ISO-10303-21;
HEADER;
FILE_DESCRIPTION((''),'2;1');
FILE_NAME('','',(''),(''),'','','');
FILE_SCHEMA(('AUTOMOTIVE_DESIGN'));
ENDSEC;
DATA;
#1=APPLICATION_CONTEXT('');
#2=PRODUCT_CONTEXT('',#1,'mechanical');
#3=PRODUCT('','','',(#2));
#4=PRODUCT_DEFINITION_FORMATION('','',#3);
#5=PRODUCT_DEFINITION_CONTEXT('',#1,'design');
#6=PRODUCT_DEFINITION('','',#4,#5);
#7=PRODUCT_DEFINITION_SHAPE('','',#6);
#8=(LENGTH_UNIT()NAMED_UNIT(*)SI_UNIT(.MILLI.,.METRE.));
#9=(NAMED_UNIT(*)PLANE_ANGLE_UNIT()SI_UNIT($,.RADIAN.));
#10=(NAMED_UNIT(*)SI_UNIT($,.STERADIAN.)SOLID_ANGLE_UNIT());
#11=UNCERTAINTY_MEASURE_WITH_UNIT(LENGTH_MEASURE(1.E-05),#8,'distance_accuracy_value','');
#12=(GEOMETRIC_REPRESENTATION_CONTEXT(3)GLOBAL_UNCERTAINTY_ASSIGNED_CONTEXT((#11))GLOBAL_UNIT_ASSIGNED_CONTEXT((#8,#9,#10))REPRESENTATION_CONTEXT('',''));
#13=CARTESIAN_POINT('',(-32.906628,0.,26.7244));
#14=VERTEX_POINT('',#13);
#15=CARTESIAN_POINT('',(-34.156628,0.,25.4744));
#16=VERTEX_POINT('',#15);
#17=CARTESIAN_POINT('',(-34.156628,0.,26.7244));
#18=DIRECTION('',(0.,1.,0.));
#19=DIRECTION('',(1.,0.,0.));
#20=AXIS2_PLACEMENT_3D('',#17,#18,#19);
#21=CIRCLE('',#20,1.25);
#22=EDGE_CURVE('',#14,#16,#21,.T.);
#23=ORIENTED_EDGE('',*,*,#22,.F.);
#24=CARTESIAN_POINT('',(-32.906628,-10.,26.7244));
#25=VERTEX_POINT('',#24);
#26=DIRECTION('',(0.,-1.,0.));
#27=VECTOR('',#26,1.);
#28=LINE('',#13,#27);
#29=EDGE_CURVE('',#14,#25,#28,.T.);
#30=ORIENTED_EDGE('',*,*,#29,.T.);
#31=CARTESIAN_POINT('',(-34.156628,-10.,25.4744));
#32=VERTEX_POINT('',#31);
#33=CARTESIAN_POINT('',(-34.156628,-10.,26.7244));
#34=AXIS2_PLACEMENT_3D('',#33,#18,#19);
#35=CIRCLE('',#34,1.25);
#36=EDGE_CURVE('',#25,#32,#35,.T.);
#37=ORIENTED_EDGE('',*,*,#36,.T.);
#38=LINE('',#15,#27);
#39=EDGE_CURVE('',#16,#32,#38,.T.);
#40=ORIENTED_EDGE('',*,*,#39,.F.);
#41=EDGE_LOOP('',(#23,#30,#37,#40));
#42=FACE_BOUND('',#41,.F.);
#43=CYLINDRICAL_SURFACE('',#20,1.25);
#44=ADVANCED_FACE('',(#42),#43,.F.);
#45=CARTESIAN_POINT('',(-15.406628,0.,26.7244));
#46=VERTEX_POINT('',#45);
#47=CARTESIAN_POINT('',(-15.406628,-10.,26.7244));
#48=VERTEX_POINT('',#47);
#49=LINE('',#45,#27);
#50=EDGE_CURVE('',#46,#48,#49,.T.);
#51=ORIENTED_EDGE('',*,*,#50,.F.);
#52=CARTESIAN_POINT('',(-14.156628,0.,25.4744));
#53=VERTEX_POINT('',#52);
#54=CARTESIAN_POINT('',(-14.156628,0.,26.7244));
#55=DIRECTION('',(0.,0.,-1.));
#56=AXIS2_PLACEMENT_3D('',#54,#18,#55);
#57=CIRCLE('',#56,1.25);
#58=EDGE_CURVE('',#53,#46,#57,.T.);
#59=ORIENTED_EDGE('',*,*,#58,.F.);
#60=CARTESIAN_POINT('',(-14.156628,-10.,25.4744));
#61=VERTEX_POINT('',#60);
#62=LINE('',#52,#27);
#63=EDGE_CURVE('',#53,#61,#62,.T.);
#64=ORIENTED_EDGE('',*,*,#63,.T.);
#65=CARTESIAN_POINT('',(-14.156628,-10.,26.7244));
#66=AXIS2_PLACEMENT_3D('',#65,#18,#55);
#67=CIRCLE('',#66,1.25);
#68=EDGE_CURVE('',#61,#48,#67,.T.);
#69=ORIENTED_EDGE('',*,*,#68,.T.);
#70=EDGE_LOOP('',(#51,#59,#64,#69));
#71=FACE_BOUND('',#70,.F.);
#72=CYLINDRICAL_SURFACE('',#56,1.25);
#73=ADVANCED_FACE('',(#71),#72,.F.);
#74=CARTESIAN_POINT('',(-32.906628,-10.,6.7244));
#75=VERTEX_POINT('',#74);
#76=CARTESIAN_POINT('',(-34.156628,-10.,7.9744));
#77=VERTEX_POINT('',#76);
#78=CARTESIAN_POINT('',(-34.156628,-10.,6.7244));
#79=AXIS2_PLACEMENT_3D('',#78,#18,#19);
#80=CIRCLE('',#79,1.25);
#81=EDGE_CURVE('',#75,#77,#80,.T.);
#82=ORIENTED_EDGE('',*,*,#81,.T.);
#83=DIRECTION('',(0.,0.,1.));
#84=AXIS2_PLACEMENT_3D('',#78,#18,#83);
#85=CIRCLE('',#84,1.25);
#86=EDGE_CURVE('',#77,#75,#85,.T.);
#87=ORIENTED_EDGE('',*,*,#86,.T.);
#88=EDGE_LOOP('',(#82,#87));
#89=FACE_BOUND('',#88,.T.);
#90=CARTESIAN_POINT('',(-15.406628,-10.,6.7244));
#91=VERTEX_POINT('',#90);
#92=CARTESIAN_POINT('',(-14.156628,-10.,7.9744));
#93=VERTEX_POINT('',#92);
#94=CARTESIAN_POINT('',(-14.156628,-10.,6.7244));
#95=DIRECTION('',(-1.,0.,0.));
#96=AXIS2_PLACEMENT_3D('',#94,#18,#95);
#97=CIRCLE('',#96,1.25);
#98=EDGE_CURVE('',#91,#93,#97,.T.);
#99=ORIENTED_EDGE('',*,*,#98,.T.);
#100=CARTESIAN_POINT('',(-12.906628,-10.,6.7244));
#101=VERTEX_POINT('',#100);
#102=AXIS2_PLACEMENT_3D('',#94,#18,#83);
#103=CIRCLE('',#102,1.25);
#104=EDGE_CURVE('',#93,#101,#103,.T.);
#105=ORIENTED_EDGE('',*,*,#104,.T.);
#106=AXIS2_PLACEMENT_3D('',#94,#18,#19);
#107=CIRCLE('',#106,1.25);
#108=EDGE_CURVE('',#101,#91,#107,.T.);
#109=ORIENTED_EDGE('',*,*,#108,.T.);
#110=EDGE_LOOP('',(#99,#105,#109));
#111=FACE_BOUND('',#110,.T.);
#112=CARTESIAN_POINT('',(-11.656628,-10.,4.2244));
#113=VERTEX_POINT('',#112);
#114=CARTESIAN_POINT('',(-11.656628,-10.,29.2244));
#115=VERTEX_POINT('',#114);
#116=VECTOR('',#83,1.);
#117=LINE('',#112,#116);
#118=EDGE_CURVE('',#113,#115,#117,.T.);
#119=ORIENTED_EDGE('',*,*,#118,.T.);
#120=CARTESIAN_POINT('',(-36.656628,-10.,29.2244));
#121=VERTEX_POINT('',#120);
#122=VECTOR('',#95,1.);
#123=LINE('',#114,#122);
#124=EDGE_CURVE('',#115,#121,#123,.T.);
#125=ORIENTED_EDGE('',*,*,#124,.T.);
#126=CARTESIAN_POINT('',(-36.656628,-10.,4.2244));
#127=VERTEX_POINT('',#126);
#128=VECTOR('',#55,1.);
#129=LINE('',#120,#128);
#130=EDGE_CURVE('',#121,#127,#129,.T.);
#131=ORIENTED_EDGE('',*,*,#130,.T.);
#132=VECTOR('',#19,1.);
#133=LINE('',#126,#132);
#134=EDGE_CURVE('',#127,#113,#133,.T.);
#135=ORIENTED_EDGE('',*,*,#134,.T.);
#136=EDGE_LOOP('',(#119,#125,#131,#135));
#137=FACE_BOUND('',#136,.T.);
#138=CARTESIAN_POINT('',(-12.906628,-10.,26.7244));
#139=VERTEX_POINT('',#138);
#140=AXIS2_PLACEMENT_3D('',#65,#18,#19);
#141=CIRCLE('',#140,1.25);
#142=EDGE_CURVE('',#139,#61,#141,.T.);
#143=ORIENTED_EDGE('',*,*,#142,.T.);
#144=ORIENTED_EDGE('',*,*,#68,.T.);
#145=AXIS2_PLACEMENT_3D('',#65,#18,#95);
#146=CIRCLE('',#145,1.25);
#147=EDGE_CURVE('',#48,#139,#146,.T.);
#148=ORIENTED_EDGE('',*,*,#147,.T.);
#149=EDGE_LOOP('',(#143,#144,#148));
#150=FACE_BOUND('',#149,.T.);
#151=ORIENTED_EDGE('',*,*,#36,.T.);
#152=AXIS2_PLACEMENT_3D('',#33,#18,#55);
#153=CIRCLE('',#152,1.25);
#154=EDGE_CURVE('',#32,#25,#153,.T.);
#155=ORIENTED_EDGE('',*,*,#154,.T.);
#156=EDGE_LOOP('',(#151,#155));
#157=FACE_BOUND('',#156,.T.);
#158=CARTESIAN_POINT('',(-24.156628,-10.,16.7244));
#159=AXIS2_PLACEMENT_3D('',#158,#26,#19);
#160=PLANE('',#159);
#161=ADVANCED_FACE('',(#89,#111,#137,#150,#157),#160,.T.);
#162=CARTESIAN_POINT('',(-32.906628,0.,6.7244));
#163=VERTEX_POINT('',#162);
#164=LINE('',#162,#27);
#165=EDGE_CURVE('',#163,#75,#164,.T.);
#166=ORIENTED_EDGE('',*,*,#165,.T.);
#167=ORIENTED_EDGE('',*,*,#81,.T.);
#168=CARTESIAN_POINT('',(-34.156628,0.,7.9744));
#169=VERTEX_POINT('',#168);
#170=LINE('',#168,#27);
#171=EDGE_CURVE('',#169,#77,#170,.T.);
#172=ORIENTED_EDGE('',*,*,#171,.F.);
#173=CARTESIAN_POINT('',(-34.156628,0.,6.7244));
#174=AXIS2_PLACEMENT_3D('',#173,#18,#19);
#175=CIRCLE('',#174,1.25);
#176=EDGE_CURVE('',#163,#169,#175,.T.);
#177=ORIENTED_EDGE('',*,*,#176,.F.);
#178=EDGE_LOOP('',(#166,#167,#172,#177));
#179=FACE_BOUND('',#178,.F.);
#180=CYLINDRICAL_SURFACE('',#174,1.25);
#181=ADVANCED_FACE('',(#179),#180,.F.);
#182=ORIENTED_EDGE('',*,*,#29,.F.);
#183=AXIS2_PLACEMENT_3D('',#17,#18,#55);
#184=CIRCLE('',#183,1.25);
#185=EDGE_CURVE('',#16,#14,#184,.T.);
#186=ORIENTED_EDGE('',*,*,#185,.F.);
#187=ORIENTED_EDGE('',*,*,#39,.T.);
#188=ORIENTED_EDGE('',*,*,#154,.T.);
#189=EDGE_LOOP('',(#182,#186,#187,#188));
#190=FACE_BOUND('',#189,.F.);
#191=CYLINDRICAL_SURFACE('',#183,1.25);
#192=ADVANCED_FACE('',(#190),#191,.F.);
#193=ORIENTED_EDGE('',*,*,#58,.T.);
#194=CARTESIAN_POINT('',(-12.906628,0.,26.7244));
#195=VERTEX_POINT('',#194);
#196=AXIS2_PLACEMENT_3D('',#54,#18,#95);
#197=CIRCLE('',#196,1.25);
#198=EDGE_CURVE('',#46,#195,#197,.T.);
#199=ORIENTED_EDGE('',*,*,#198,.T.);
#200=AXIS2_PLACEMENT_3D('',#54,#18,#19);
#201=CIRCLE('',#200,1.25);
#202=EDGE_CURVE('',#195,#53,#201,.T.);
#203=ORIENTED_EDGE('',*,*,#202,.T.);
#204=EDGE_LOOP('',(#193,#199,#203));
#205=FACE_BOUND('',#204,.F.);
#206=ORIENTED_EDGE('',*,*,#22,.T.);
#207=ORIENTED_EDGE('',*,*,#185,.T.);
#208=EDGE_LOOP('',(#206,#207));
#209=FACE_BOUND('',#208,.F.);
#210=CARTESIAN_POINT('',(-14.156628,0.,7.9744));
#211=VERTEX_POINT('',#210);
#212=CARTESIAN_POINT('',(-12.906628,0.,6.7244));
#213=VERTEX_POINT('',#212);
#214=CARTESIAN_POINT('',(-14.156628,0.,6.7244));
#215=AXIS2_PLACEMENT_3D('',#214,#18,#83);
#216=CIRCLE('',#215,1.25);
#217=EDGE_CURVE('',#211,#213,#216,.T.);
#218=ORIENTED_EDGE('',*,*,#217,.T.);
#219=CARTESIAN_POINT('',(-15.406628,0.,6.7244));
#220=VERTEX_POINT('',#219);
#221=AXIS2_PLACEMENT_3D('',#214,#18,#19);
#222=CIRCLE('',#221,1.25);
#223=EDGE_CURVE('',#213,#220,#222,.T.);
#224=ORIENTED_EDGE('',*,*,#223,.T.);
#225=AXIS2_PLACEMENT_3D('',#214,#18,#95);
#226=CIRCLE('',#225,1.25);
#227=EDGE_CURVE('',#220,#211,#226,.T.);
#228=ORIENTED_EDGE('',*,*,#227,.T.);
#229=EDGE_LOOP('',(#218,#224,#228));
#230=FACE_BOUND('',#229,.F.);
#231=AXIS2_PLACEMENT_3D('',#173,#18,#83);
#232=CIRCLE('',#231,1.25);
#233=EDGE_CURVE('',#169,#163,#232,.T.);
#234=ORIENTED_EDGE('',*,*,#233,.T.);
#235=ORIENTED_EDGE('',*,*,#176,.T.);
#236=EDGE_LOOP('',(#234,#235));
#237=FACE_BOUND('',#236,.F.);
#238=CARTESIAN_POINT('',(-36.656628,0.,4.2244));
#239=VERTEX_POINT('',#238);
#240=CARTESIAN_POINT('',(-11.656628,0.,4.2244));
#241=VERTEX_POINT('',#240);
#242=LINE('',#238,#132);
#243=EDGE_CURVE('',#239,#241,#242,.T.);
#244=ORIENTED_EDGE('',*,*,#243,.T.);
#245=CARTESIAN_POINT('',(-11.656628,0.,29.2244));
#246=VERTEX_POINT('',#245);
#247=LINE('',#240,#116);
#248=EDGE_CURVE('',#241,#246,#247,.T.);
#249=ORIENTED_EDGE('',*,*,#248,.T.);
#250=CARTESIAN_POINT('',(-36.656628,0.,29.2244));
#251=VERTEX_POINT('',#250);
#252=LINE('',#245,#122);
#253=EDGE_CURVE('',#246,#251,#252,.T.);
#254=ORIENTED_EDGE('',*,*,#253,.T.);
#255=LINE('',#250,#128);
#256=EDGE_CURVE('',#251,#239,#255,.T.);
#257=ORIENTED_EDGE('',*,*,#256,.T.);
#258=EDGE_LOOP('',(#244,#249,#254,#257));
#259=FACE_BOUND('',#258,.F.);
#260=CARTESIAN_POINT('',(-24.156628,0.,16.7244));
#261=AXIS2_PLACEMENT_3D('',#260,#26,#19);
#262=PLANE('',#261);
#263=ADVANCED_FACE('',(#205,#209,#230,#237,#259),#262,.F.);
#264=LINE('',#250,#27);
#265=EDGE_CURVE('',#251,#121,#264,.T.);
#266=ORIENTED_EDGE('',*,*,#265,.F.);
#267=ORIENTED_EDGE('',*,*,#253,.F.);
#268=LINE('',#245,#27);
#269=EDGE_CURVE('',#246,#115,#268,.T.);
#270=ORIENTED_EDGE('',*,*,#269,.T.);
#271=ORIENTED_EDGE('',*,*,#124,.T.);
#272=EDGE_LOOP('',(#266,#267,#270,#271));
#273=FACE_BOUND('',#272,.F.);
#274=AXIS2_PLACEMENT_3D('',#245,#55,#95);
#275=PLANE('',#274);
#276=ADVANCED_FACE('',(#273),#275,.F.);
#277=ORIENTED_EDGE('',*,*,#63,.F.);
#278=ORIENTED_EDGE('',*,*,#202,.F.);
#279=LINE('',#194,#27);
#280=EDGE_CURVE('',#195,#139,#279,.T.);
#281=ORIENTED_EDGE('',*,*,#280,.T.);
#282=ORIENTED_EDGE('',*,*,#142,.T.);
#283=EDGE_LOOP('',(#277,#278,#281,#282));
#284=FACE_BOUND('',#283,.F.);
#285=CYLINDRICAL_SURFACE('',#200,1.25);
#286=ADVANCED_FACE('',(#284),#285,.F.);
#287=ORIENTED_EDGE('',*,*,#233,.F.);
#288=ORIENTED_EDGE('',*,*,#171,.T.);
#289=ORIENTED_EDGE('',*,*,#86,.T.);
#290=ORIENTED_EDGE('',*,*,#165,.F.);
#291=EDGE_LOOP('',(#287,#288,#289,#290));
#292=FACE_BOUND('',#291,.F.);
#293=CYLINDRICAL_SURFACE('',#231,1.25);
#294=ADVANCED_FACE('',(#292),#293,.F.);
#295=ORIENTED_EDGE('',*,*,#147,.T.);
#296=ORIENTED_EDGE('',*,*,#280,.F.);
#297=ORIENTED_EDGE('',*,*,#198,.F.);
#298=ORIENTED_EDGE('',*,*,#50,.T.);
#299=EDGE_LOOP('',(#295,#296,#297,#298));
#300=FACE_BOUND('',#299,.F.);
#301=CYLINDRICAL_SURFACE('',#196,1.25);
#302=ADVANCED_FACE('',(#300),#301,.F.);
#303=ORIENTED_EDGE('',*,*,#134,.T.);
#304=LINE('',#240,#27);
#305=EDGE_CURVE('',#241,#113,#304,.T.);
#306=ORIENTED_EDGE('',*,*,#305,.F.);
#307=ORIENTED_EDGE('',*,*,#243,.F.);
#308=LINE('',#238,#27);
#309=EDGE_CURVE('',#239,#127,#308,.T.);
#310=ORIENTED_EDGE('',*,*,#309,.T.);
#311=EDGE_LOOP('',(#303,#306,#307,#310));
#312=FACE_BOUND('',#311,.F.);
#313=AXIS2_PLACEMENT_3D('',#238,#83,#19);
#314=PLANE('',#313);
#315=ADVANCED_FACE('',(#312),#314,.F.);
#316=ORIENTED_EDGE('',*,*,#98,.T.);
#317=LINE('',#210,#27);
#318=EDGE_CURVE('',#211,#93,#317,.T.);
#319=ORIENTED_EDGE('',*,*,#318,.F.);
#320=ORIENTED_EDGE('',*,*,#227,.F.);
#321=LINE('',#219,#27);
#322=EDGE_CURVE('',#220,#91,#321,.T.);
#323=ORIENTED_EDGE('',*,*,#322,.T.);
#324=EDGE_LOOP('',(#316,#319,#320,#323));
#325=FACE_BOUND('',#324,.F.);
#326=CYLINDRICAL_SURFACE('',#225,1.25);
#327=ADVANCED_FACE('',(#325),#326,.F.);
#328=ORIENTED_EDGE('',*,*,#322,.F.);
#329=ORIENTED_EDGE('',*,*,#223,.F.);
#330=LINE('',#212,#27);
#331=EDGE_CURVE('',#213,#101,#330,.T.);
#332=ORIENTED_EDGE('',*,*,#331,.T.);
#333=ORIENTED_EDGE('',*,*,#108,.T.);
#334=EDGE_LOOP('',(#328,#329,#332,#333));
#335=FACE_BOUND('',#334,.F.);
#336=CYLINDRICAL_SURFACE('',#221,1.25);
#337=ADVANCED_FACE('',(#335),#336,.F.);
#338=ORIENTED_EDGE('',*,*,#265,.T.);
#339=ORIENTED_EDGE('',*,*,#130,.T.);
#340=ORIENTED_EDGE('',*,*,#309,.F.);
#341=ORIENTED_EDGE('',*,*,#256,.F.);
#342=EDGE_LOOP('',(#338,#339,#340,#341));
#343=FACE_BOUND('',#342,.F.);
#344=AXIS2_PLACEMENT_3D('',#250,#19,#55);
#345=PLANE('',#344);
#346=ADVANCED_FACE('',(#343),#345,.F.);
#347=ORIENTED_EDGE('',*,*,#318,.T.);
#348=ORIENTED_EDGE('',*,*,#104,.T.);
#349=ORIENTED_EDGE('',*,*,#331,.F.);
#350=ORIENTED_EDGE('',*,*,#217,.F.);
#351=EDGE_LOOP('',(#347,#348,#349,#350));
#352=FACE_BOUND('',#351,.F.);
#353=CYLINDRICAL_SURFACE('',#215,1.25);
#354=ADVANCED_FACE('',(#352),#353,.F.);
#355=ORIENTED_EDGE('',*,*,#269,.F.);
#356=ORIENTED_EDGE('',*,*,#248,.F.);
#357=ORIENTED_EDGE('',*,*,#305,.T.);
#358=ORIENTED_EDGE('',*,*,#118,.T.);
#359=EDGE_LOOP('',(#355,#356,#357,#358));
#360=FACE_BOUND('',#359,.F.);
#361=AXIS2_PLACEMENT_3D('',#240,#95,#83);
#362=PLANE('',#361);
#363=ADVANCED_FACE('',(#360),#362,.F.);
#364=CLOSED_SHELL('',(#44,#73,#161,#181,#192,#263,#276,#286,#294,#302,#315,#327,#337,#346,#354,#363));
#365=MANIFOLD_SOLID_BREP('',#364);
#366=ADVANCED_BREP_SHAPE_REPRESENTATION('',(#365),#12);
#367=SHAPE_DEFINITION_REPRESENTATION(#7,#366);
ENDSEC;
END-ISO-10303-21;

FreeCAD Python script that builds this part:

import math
import FreeCAD as App
import Part
import Sketcher
from FreeCAD import Vector
Q = App.Units.Quantity


def add_polygon(sketch, points):
    """Adds a closed chain of lines whose ends are joined by coincident constraints."""
    first, n = sketch.GeometryCount, len(points)
    for a, b in zip(points, points[1:] + points[:1]):
        sketch.addGeometry(Part.LineSegment(App.Vector(*a, 0), App.Vector(*b, 0)), False)
    for i in range(n):
        sketch.addConstraint(Sketcher.Constraint("Coincident", first + i, 2, first + (i + 1) % n, 1))

doc = App.newDocument("Part")
params = doc.addObject("Spreadsheet::Sheet", "Params")
for row, (alias, value) in enumerate([
    ("sketch1_width", "25 mm"),
    ("sketch1_radius", "1.25 mm"),
    ("pad1_length", "10 mm"),
], start=1):
    params.set(f"A{row}", alias)
    params.set(f"B{row}", "=" + value)
    params.setAlias(f"B{row}", alias)

body = doc.addObject("PartDesign::Body", "Body")

sketch1 = body.newObject("Sketcher::SketchObject", "Sketch")
sketch1.AttachmentSupport = (doc.getObject("XZ_Plane"), [""])
sketch1.MapMode = "FlatFace"
add_polygon(sketch1, [(-11.7, 4.2), (-11.7, 29.2), (-36.7, 29.2), (-36.7, 4.2)])
sketch1.addGeometry(Part.ArcOfCircle(Part.Circle(Vector(-34.2, 26.7, 0), Vector(0, 0, 1), 1.2), math.radians(0), math.radians(270)), False)
sketch1.addGeometry(Part.ArcOfCircle(Part.Circle(Vector(-34.2, 26.7, 0), Vector(0, 0, 1), 1.2), math.radians(-90), math.radians(0)), False)
sketch1.addGeometry(Part.ArcOfCircle(Part.Circle(Vector(-14.2, 26.7, 0), Vector(0, 0, 1), 1.2), math.radians(0), math.radians(180)), False)
sketch1.addGeometry(Part.ArcOfCircle(Part.Circle(Vector(-14.2, 26.7, 0), Vector(0, 0, 1), 1.2), math.radians(-90), math.radians(0)), False)
sketch1.addGeometry(Part.ArcOfCircle(Part.Circle(Vector(-14.2, 26.7, 0), Vector(0, 0, 1), 1.2), math.radians(180), math.radians(270)), False)
sketch1.addGeometry(Part.ArcOfCircle(Part.Circle(Vector(-34.2, 6.7, 0), Vector(0, 0, 1), 1.2), math.radians(90), math.radians(360)), False)
sketch1.addGeometry(Part.ArcOfCircle(Part.Circle(Vector(-34.2, 6.7, 0), Vector(0, 0, 1), 1.2), math.radians(0), math.radians(90)), False)
sketch1.addGeometry(Part.ArcOfCircle(Part.Circle(Vector(-14.2, 6.7, 0), Vector(0, 0, 1), 1.2), math.radians(180), math.radians(360)), False)
sketch1.addGeometry(Part.ArcOfCircle(Part.Circle(Vector(-14.2, 6.7, 0), Vector(0, 0, 1), 1.2), math.radians(90), math.radians(180)), False)
sketch1.addGeometry(Part.ArcOfCircle(Part.Circle(Vector(-14.2, 6.7, 0), Vector(0, 0, 1), 1.2), math.radians(0), math.radians(90)), False)
sketch1.addConstraint([
    Sketcher.Constraint("Tangent", 4, 1, 5, 2),
    Sketcher.Constraint("Coincident", 5, 1, 4, 2),
    Sketcher.Constraint("Tangent", 6, 1, 7, 2),
    Sketcher.Constraint("Tangent", 7, 1, 8, 2),
    Sketcher.Constraint("Tangent", 8, 1, 6, 2),
    Sketcher.Constraint("Tangent", 9, 1, 10, 2),
    Sketcher.Constraint("Coincident", 10, 1, 9, 2),
    Sketcher.Constraint("Tangent", 11, 1, 12, 2),
    Sketcher.Constraint("Tangent", 12, 1, 13, 2),
    Sketcher.Constraint("Tangent", 13, 1, 11, 2),
    Sketcher.Constraint("Vertical", 0),
    Sketcher.Constraint("Horizontal", 1),
    Sketcher.Constraint("Vertical", 2),
    Sketcher.Constraint("Horizontal", 3),
    Sketcher.Constraint("Equal", 5, 6),
    Sketcher.Constraint("Equal", 8, 9),
    Sketcher.Constraint("Equal", 10, 11),
    Sketcher.Constraint("Horizontal", 5, 3, 6, 3),
    Sketcher.Constraint("Horizontal", 10, 3, 11, 3),
    Sketcher.Constraint("Horizontal", 8, 3, 4, 1),
    Sketcher.Constraint("Horizontal", 4, 1, 6, 1),
    Sketcher.Constraint("Horizontal", 6, 1, 8, 1),
    Sketcher.Constraint("Horizontal", 13, 3, 10, 1),
    Sketcher.Constraint("Horizontal", 10, 1, 11, 1),
    Sketcher.Constraint("Horizontal", 11, 1, 13, 1),
    Sketcher.Constraint("Vertical", 5, 3, 9, 3),
    Sketcher.Constraint("Vertical", 8, 3, 11, 3),
    Sketcher.Constraint("Vertical", 10, 3, 5, 1),
    Sketcher.Constraint("Vertical", 13, 3, 7, 1),
    Sketcher.Constraint("Vertical", 5, 1, 9, 1),
    Sketcher.Constraint("Vertical", 7, 1, 12, 1),
    Sketcher.Constraint("Equal", 3, 0),
    Sketcher.Constraint("DistanceX", 1, 2, 1, 1, Q("25 mm")),
    Sketcher.Constraint("Radius", 4, Q("1.25 mm")),
    Sketcher.Constraint("DistanceX", 4, 3, 6, 3, Q("20 mm")),
    Sketcher.Constraint("DistanceY", 9, 3, 4, 3, Q("20 mm")),
    Sketcher.Constraint("DistanceX", 6, 3, 0, 2, Q("2.5 mm")),
    Sketcher.Constraint("DistanceY", 6, 3, 0, 2, Q("2.5 mm")),
    Sketcher.Constraint("DistanceY", -1, 1, 4, 3, Q("26.7244 mm")),
    Sketcher.Constraint("DistanceX", 4, 3, -1, 1, Q("34.156628 mm")),
])
sketch1.setExpression("Constraints[36]", "Params.sketch1_width")
sketch1.setExpression("Constraints[37]", "Params.sketch1_radius")
pad1 = body.newObject("PartDesign::Pad", "Pad")
pad1.Profile = sketch1
pad1.setExpression("Length", "Params.pad1_length")

doc.recompute()
